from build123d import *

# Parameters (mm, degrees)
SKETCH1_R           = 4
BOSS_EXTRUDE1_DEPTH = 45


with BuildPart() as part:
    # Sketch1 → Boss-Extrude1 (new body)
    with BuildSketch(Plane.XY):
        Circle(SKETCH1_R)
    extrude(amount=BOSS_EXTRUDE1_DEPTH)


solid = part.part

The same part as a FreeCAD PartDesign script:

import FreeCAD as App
import Part
import Sketcher
Q = App.Units.Quantity

doc = App.newDocument("Part")
body = doc.addObject("PartDesign::Body", "Body")

# Sketch on XY plane
sketch1 = body.newObject("Sketcher::SketchObject", "Sketch")
sketch1.AttachmentSupport = (doc.getObject("XY_Plane"), [""])
sketch1.MapMode = "FlatFace"
sketch1.addGeometry(Part.Circle(App.Vector(0, 0, 0), App.Vector(0, 0, 1), 4), False)
sketch1.addConstraint([
    Sketcher.Constraint("Coincident", 0, 3, -1, 1),
    Sketcher.Constraint("Diameter", 0, Q("8 mm")),
])
pad1 = body.newObject("PartDesign::Pad", "Pad")
pad1.Profile = sketch1
pad1.Length = 45

doc.recompute()
